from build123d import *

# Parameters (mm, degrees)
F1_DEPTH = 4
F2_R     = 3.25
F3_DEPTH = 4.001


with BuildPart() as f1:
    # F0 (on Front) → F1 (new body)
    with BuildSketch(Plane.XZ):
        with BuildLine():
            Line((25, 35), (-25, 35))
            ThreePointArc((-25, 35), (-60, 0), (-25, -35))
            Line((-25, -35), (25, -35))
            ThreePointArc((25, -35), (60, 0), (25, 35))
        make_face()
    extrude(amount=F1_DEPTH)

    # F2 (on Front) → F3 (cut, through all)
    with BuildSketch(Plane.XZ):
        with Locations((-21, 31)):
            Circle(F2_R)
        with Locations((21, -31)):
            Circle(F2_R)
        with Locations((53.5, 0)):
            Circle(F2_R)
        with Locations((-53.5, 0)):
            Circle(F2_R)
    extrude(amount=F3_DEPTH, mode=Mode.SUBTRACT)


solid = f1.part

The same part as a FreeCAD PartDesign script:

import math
import FreeCAD as App
import Part
import Sketcher

doc = App.newDocument("Part")
body = doc.addObject("PartDesign::Body", "Body")

# Sketch on XZ plane
sketch1 = body.newObject("Sketcher::SketchObject", "Sketch")
sketch1.AttachmentSupport = (doc.getObject("XZ_Plane"), [""])
sketch1.MapMode = "FlatFace"
sketch1.addGeometry([
    Part.LineSegment(App.Vector(25, 35, 0), App.Vector(-25, 35, 0)),
    Part.ArcOfCircle(Part.Circle(App.Vector(-25, 0, 0), App.Vector(0, 0, 1), 35), math.radians(90), math.radians(270)),
    Part.LineSegment(App.Vector(-25, -35, 0), App.Vector(25, -35, 0)),
    Part.ArcOfCircle(Part.Circle(App.Vector(25, 0, 0), App.Vector(0, 0, 1), 35), math.radians(-90), math.radians(90)),
], False)
sketch1.addConstraint([
    Sketcher.Constraint("Tangent", 0, 2, 1, 1),
    Sketcher.Constraint("Tangent", 1, 2, 2, 1),
    Sketcher.Constraint("Tangent", 2, 2, 3, 1),
    Sketcher.Constraint("Tangent", 3, 2, 0, 1),
    Sketcher.Constraint("Horizontal", 0),
    Sketcher.Constraint("Horizontal", 2),
    Sketcher.Constraint("Symmetric", 1, 3, 3, 3, -1, 1),
    Sketcher.Constraint("Radius", 1, 35.0),
    Sketcher.Constraint("DistanceX", 0, 2, 0, 1, 50.0),
])
pad1 = body.newObject("PartDesign::Pad", "Pad")
pad1.Profile = sketch1
pad1.Length = 4

# Sketch on XZ plane
sketch2 = body.newObject("Sketcher::SketchObject", "Sketch001")
sketch2.AttachmentSupport = (doc.getObject("XZ_Plane"), [""])
sketch2.MapMode = "FlatFace"
sketch2.addGeometry([
    Part.Circle(App.Vector(-21, 31, 0), App.Vector(0, 0, 1), 3.2),
    Part.Circle(App.Vector(21, -31, 0), App.Vector(0, 0, 1), 3.2),
    Part.Circle(App.Vector(53.5, 0, 0), App.Vector(0, 0, 1), 3.2),
    Part.Circle(App.Vector(-53.5, 0, 0), App.Vector(0, 0, 1), 3.2),
], False)
sketch2.addConstraint([
    Sketcher.Constraint("Equal", 0, 1),
    Sketcher.Constraint("Equal", 1, 2),
    Sketcher.Constraint("Equal", 2, 3),
    Sketcher.Constraint("Symmetric", 0, 3, 1, 3, -1, 1),
    Sketcher.Constraint("Symmetric", 2, 3, 3, 3, -1, 1),
    Sketcher.Constraint("PointOnObject", 2, 3, -1),
    Sketcher.Constraint("Diameter", 0, 6.5),
    Sketcher.Constraint("DistanceX", 0, 3, -1, 1, 21.0),
    Sketcher.Constraint("DistanceY", -1, 1, 0, 3, 31.0),
    Sketcher.Constraint("DistanceX", 3, 3, 2, 3, 107.0),
])
pocket1 = body.newObject("PartDesign::Pocket", "Pocket")
pocket1.Profile = sketch2
pocket1.Type = "ThroughAll"
pocket1.Reversed = True

doc.recompute()
